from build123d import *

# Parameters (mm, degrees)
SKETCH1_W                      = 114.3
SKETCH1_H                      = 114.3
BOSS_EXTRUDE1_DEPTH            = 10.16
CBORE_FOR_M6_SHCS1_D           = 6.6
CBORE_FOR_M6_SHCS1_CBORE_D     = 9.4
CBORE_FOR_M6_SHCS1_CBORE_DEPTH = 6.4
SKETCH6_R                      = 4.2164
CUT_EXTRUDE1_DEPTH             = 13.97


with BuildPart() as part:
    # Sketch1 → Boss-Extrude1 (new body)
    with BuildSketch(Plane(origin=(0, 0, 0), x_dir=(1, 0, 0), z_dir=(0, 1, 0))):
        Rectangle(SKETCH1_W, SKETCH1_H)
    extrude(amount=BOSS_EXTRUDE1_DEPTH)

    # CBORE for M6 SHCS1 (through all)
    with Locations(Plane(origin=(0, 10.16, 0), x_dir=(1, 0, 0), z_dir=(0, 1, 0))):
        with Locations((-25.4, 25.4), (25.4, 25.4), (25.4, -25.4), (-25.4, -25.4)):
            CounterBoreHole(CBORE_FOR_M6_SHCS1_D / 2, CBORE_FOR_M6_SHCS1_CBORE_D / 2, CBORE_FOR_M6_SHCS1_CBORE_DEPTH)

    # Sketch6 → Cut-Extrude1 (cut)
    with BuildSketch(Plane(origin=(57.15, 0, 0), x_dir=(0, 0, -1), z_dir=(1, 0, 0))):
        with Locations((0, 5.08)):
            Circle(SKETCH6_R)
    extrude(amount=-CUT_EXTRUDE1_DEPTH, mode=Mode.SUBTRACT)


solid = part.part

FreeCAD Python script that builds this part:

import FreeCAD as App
import Part
import Sketcher
Q = App.Units.Quantity


def add_polygon(sketch, points):
    """Adds a closed chain of lines whose ends are joined by coincident constraints."""
    first, n = sketch.GeometryCount, len(points)
    for a, b in zip(points, points[1:] + points[:1]):
        sketch.addGeometry(Part.LineSegment(App.Vector(*a, 0), App.Vector(*b, 0)), False)
    for i in range(n):
        sketch.addConstraint(Sketcher.Constraint("Coincident", first + i, 2, first + (i + 1) % n, 1))

doc = App.newDocument("Part")
body = doc.addObject("PartDesign::Body", "Body")

sketch1 = body.newObject("Sketcher::SketchObject", "Sketch")
sketch1.AttachmentSupport = (doc.getObject("XZ_Plane"), [""])
sketch1.MapMode = "FlatFace"
add_polygon(sketch1, [(-57, -57), (-57, 57), (57, 57), (57, -57)])
sketch1.addConstraint([
    Sketcher.Constraint("Vertical", 0),
    Sketcher.Constraint("Horizontal", 1),
    Sketcher.Constraint("Vertical", 2),
    Sketcher.Constraint("Horizontal", 3),
    Sketcher.Constraint("Symmetric", 0, 2, 2, 2, -1, 1),
    Sketcher.Constraint("Equal", 3, 0),
    Sketcher.Constraint("DistanceX", 1, 1, 1, 2, Q("4.5 in")),
])
pad1 = body.newObject("PartDesign::Pad", "Pad")
pad1.Profile = sketch1
pad1.Length = Q("0.4 in")
pad1.Reversed = True

sketch2 = body.newObject("Sketcher::SketchObject", "Sketch001")
sketch2.AttachmentSupport = (doc.getObject("XZ_Plane"), [""])
sketch2.MapMode = "FlatFace"
sketch2.AttachmentOffset = App.Placement(App.Vector(0, 0, -0.4 * 25.4), App.Rotation())
sketch2.addGeometry([
    Part.Circle(App.Vector(-25.4, -25.4, 0), App.Vector(0, 0, 1), 3.3),
    Part.Circle(App.Vector(25.4, -25.4, 0), App.Vector(0, 0, 1), 3.3),
    Part.Circle(App.Vector(25.4, 25.4, 0), App.Vector(0, 0, 1), 3.3),
    Part.Circle(App.Vector(-25.4, 25.4, 0), App.Vector(0, 0, 1), 3.3),
], False)
sketch2.addConstraint([
    Sketcher.Constraint("Equal", 0, 1),
    Sketcher.Constraint("Equal", 1, 2),
    Sketcher.Constraint("Equal", 2, 3),
    Sketcher.Constraint("Symmetric", 0, 3, 2, 3, -1, 1),
    Sketcher.Constraint("Symmetric", 1, 3, 3, 3, -1, 1),
    Sketcher.Constraint("Symmetric", 0, 3, 1, 3, -2),
    Sketcher.Constraint("DistanceX", 0, 3, -1, 1, Q("1 in")),
    Sketcher.Constraint("DistanceY", 0, 3, -1, 1, Q("1 in")),
    Sketcher.Constraint("Diameter", 0, 6.6),
])
doc.recompute()
hole = body.newObject("PartDesign::Hole", "Hole")
hole.Profile = sketch2
hole.ThreadType = "None"
hole.Diameter = 6.6
hole.DepthType = "ThroughAll"
hole.HoleCutType = "Counterbore"
hole.HoleCutDiameter = 9.4
hole.HoleCutDepth = 6.4
hole.Reversed = True

sketch3 = body.newObject("Sketcher::SketchObject", "Sketch002")
sketch3.AttachmentSupport = (doc.getObject("YZ_Plane"), [""])
sketch3.MapMode = "FlatFace"
sketch3.AttachmentOffset = App.Placement(App.Vector(0, 0, 2.25 * 25.4), App.Rotation())
sketch3.addGeometry(Part.Circle(App.Vector(5.1, 0, 0), App.Vector(0, 0, 1), 4.2), False)
sketch3.addConstraint([
    Sketcher.Constraint("PointOnObject", 0, 3, -1),
    Sketcher.Constraint("Diameter", 0, Q("0.332 in")),
    Sketcher.Constraint("DistanceX", -1, 1, 0, 3, Q("0.2 in")),
])
pocket1 = body.newObject("PartDesign::Pocket", "Pocket")
pocket1.Profile = sketch3
pocket1.Length = Q("0.55 in")

doc.recompute()
